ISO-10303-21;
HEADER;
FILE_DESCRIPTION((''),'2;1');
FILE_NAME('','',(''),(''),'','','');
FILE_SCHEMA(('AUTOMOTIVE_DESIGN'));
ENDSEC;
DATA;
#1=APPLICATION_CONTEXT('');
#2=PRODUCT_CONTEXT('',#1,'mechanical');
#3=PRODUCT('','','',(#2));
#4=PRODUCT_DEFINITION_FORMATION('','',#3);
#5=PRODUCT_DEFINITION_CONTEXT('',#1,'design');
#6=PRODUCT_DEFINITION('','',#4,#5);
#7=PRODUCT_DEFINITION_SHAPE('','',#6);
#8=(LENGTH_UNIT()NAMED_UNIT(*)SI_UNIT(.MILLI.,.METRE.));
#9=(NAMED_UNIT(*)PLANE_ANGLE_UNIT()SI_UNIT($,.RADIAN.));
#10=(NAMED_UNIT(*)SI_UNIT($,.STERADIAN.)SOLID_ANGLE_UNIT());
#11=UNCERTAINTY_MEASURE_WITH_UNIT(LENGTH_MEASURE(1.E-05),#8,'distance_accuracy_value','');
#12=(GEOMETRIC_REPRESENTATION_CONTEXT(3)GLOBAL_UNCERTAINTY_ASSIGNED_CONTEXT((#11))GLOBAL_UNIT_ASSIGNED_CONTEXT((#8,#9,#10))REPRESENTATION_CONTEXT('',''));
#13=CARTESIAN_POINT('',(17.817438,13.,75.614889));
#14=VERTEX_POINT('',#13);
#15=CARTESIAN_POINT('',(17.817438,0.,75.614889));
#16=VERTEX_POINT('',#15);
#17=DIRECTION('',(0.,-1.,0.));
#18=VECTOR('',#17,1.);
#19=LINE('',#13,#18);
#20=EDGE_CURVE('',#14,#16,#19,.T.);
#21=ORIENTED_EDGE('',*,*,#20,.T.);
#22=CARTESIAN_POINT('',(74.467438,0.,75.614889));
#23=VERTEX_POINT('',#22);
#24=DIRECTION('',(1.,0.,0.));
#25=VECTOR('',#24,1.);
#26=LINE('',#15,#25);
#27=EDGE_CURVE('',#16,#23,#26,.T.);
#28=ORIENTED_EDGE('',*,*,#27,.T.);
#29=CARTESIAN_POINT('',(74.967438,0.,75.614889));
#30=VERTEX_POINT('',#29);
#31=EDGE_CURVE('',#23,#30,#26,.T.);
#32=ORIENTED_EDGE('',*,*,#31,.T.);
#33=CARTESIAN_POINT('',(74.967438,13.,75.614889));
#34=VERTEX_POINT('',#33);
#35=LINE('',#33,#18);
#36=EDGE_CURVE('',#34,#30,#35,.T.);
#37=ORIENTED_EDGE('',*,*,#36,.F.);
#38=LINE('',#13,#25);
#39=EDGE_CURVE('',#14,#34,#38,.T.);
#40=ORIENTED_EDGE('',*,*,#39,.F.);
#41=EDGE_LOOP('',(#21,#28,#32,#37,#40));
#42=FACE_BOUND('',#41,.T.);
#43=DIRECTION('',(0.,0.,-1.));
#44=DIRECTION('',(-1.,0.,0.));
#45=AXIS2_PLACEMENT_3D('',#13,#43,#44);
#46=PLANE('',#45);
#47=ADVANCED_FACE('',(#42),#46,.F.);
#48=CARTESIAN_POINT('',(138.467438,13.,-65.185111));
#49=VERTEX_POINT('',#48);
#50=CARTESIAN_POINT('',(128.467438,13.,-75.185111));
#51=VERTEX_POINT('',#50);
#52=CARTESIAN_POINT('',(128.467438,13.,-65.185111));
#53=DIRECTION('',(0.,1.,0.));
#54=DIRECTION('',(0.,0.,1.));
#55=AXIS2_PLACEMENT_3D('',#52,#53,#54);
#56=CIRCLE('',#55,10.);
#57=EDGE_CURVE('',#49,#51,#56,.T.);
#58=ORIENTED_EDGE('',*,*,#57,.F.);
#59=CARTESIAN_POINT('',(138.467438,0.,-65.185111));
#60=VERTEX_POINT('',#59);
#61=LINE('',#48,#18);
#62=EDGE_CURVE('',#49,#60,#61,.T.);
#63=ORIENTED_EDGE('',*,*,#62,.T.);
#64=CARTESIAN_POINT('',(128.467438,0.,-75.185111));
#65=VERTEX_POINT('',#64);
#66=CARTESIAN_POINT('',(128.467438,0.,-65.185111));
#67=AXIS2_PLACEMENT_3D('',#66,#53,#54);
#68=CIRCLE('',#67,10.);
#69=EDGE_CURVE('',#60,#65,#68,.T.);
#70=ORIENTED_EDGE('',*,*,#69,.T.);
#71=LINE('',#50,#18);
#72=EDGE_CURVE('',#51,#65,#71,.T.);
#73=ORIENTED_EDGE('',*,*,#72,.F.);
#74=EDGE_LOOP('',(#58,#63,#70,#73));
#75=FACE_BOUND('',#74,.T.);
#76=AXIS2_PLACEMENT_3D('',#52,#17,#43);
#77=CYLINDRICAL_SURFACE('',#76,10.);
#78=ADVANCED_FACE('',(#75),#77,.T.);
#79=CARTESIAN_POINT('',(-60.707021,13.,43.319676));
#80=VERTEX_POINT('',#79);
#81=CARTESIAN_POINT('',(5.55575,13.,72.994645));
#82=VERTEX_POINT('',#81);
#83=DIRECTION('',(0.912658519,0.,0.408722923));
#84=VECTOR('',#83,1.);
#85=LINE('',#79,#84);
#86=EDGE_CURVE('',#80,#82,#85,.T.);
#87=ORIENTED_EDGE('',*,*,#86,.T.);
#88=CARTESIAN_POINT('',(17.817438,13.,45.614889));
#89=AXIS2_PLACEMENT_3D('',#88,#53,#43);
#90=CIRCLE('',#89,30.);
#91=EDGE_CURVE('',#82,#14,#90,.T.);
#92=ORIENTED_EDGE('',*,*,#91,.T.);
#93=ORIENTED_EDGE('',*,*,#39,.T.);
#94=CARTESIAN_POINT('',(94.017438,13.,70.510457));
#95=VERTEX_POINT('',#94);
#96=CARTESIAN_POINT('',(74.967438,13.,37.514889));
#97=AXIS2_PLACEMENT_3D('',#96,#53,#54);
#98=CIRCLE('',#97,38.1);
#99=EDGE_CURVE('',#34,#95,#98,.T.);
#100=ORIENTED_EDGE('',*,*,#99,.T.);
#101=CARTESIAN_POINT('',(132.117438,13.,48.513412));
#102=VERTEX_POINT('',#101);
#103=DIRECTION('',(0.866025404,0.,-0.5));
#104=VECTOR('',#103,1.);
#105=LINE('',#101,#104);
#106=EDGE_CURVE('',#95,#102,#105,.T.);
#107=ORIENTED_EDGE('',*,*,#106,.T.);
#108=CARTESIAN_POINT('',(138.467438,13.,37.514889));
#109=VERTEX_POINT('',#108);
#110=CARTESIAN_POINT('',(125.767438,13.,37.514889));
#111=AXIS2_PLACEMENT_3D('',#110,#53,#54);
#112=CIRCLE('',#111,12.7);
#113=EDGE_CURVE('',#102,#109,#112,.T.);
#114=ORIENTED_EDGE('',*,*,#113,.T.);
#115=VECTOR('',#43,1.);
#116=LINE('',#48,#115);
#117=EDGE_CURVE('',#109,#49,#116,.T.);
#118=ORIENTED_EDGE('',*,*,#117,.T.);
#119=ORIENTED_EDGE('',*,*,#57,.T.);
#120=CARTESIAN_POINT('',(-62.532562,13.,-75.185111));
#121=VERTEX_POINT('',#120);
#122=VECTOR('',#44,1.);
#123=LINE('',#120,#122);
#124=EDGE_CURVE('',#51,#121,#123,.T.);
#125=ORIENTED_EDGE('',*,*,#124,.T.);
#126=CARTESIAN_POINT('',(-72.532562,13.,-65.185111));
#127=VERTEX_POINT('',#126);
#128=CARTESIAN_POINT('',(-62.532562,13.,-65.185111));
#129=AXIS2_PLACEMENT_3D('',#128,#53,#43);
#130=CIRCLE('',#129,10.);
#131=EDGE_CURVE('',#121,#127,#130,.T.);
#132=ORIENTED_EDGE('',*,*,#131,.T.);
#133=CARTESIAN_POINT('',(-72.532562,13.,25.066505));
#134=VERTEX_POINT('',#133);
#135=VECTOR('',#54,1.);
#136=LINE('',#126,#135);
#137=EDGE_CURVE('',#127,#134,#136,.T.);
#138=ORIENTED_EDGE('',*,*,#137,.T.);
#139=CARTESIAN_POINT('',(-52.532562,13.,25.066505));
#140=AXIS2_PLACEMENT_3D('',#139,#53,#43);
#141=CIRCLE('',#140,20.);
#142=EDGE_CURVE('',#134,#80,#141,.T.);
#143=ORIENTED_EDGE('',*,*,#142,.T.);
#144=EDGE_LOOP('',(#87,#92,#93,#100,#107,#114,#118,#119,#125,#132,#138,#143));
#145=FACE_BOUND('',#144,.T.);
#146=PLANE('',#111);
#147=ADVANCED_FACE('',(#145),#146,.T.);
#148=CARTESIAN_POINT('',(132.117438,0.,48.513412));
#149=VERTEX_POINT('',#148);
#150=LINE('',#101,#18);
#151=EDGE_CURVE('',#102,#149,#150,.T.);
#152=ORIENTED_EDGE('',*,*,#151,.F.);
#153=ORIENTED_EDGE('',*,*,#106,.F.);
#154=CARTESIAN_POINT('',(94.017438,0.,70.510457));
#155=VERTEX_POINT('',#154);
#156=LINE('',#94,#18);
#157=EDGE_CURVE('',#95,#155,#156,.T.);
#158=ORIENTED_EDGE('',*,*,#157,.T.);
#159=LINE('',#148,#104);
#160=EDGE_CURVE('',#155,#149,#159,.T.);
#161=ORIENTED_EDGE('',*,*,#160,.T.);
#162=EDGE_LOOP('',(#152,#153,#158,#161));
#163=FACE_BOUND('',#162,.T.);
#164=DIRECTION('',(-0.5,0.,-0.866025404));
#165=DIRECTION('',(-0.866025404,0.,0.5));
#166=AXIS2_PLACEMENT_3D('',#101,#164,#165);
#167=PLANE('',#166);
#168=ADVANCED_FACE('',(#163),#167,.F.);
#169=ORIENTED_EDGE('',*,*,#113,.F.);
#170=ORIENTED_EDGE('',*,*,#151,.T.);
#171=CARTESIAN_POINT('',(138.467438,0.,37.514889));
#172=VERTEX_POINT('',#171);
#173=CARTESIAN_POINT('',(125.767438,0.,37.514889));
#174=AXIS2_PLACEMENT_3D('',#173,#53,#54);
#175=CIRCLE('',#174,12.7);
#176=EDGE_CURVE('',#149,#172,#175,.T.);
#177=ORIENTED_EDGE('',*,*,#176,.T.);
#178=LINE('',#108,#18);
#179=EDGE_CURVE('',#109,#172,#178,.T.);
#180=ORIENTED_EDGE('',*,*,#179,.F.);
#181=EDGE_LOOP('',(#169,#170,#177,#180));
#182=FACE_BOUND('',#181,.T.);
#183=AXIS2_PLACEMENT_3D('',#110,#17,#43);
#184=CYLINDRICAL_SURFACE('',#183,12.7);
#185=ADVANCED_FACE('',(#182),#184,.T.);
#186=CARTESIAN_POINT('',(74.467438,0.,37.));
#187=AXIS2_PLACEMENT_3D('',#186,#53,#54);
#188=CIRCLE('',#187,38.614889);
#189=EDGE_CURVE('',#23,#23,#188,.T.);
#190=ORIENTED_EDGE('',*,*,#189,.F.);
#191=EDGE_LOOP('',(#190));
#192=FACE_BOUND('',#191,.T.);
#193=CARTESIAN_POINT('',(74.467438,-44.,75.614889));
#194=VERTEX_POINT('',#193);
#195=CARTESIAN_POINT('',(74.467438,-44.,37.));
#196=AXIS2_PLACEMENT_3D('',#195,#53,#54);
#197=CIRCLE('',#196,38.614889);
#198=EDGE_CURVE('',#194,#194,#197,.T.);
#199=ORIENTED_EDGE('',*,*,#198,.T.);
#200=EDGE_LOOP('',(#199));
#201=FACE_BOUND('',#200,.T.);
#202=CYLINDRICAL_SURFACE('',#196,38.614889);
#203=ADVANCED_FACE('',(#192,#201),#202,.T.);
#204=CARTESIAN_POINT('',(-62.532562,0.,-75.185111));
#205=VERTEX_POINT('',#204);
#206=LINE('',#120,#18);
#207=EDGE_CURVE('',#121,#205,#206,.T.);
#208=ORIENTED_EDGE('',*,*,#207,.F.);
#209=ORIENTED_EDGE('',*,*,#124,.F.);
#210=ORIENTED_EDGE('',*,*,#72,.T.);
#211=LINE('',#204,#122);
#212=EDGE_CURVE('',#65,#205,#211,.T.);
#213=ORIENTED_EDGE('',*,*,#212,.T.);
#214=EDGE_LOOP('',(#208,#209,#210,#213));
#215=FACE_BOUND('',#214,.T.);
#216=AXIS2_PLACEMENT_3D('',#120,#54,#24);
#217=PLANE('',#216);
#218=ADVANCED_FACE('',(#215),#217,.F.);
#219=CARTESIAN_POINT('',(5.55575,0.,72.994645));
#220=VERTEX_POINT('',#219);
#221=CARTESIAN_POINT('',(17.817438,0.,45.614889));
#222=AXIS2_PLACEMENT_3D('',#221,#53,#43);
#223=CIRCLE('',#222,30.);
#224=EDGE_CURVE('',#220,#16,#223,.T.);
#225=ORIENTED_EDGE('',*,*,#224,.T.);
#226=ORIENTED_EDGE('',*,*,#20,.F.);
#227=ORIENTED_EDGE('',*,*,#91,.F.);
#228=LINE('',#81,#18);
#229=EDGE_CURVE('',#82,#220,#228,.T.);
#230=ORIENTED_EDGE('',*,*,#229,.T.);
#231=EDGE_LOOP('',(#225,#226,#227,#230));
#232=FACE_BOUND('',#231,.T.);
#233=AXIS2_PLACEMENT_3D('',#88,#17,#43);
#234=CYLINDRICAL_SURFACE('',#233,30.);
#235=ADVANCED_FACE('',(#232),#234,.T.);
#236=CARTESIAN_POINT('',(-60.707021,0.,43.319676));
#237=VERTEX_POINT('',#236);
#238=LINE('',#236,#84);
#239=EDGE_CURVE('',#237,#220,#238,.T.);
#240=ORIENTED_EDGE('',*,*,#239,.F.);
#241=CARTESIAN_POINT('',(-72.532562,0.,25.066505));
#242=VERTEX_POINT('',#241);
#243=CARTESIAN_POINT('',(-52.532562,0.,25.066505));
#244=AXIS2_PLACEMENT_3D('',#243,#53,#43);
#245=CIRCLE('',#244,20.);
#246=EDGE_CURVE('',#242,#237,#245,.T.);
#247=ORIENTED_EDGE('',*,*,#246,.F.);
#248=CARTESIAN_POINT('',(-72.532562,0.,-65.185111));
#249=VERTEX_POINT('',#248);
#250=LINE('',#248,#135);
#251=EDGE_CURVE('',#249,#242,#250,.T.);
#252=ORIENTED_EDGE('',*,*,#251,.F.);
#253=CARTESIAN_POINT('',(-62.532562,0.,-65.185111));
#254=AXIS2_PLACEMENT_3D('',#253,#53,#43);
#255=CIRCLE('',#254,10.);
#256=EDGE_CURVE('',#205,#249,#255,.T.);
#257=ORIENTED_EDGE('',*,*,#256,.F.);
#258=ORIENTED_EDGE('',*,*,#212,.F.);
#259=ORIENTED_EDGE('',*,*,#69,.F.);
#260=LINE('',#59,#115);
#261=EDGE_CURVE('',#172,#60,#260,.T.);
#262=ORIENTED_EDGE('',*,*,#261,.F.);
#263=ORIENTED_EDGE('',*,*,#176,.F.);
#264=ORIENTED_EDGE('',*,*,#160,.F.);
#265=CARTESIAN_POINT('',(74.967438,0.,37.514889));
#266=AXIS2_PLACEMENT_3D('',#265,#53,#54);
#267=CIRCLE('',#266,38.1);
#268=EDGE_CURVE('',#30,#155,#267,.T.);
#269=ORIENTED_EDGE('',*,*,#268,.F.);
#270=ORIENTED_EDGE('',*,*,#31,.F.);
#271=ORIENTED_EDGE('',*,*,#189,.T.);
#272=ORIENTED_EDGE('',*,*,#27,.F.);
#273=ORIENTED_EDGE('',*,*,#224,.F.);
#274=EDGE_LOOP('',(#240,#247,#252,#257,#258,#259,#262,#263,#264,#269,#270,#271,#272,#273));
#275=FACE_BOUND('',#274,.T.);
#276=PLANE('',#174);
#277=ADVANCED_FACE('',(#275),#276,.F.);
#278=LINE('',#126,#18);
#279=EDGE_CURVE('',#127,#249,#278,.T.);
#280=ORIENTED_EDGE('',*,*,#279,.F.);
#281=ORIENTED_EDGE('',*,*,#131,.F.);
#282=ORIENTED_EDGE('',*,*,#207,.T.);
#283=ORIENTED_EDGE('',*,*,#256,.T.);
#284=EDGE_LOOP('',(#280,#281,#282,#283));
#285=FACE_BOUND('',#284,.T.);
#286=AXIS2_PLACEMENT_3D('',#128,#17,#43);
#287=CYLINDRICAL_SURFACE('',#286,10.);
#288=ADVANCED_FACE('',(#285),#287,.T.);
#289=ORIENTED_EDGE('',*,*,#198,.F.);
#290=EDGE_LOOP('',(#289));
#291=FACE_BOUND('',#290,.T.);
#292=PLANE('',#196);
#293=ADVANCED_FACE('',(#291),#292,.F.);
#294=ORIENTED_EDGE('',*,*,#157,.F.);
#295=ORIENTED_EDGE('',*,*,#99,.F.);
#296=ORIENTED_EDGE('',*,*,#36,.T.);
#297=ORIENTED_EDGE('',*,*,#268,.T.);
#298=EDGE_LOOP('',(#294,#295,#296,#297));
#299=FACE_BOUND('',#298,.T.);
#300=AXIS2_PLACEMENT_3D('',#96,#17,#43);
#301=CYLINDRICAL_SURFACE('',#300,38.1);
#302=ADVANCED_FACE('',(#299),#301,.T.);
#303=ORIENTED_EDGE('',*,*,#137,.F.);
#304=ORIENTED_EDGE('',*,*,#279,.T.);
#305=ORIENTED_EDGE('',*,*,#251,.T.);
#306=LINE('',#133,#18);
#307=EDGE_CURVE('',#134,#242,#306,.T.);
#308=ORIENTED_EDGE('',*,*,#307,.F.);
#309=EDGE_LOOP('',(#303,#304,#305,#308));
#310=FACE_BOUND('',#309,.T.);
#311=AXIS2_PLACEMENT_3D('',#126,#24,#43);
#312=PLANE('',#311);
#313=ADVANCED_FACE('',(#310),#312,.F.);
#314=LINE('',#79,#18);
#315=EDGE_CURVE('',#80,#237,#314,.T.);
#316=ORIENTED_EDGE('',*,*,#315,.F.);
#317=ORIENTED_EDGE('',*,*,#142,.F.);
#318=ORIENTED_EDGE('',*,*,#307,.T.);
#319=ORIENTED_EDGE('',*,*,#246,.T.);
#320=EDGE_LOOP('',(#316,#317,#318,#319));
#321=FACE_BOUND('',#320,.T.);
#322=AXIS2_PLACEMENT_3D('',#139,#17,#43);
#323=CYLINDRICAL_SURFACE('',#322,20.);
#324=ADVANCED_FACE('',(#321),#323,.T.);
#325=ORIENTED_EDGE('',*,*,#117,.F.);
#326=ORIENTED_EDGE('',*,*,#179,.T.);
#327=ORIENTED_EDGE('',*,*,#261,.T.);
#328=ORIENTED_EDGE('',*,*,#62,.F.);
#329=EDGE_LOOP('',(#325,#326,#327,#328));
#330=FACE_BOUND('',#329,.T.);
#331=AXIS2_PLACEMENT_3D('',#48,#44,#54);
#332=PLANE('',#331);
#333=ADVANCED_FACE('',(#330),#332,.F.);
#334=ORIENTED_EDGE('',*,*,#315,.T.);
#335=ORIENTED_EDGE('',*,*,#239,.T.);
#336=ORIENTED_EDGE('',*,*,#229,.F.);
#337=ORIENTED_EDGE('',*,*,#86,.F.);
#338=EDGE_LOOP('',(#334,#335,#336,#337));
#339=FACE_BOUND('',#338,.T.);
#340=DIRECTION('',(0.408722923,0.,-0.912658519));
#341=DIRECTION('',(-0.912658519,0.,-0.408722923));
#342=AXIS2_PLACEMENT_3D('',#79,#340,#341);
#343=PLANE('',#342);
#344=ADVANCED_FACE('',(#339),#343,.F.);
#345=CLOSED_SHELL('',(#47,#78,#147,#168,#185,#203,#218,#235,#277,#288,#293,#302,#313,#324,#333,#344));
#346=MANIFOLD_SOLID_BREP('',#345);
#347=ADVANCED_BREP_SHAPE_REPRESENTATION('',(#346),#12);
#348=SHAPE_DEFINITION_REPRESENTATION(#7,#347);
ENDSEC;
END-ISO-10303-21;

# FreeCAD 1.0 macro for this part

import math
import FreeCAD as App
import Part
import Sketcher
Q = App.Units.Quantity

doc = App.newDocument("Part")
body = doc.addObject("PartDesign::Body", "Body")

# Sketch on XZ plane
sketch1 = doc.addObject("Sketcher::SketchObject", "Sketch")
body.addObject(sketch1)
sketch1.AttachmentSupport = (doc.XZ_Plane, [""])
sketch1.MapMode = "FlatFace"
sketch1.addGeometry([
    Part.LineSegment(App.Vector(94.017438, 70.510457, 0), App.Vector(132.117438, 48.513412, 0)),  # 0
    Part.ArcOfCircle(Part.Circle(App.Vector(125.767438, 37.514889, 0), App.Vector(0, 0, 1), 12.7), math.radians(0), math.radians(60)),  # 1
    Part.LineSegment(App.Vector(138.467438, 37.514889, 0), App.Vector(138.467438, -65.185111, 0)),  # 2
    Part.ArcOfCircle(Part.Circle(App.Vector(128.467438, -65.185111, 0), App.Vector(0, 0, 1), 10), math.radians(-90), math.radians(0)),  # 3
    Part.LineSegment(App.Vector(128.467438, -75.185111, 0), App.Vector(-62.532562, -75.185111, 0)),  # 4
    Part.ArcOfCircle(Part.Circle(App.Vector(-62.532562, -65.185111, 0), App.Vector(0, 0, 1), 10), math.radians(-180), math.radians(-90)),  # 5
    Part.LineSegment(App.Vector(-72.532562, -65.185111, 0), App.Vector(-72.532562, 25.066505, 0)),  # 6
    Part.ArcOfCircle(Part.Circle(App.Vector(-52.532562, 25.066505, 0), App.Vector(0, 0, 1), 20), math.radians(114.124636), math.radians(180)),  # 7
    Part.LineSegment(App.Vector(-60.707021, 43.319676, 0), App.Vector(5.55575, 72.994645, 0)),  # 8
    Part.ArcOfCircle(Part.Circle(App.Vector(17.817438, 45.614889, 0), App.Vector(0, 0, 1), 30), math.radians(90), math.radians(114.124636)),  # 9
    Part.LineSegment(App.Vector(17.817438, 75.614889, 0), App.Vector(74.967438, 75.614889, 0)),  # 10
    Part.ArcOfCircle(Part.Circle(App.Vector(74.967438, 37.514889, 0), App.Vector(0, 0, 1), 38.1), math.radians(60), math.radians(90)),  # 11
], False)
sketch1.addConstraint([
    Sketcher.Constraint("Tangent", 0, 2, 1, 2),
    Sketcher.Constraint("Tangent", 1, 1, 2, 1),
    Sketcher.Constraint("Tangent", 2, 2, 3, 2),
    Sketcher.Constraint("Tangent", 3, 1, 4, 1),
    Sketcher.Constraint("Tangent", 4, 2, 5, 2),
    Sketcher.Constraint("Tangent", 5, 1, 6, 1),
    Sketcher.Constraint("Tangent", 6, 2, 7, 2),
    Sketcher.Constraint("Tangent", 7, 1, 8, 1),
    Sketcher.Constraint("Tangent", 8, 2, 9, 2),
    Sketcher.Constraint("Tangent", 9, 1, 10, 1),
    Sketcher.Constraint("Tangent", 10, 2, 11, 2),
    Sketcher.Constraint("Tangent", 11, 1, 0, 1),
    Sketcher.Constraint("Vertical", 2),
    Sketcher.Constraint("Horizontal", 4),
    Sketcher.Constraint("Vertical", 6),
    Sketcher.Constraint("Horizontal", 10),
    Sketcher.Constraint("Equal", 3, 5),
    Sketcher.Constraint("Horizontal", 1, 3, 11, 3),
    Sketcher.Constraint("Radius", 3, 10.0),
    Sketcher.Constraint("Radius", 7, 20.0),
    Sketcher.Constraint("Radius", 9, 30.0),
    Sketcher.Constraint("Radius", 1, 12.7),
    Sketcher.Constraint("Radius", 11, 38.1),
    Sketcher.Constraint("DistanceX", 4, 2, 4, 1, 191.0),
    Sketcher.Constraint("Angle", 0, Q("-30 deg")),
    Sketcher.Constraint("DistanceY", 2, 2, 2, 1, 102.7),
    Sketcher.Constraint("DistanceX", 10, 1, 10, 2, 57.15),
    Sketcher.Constraint("DistanceY", 6, 1, 6, 2, 90.251616),
    Sketcher.Constraint("DistanceY", -1, 1, 1, 3, 37.514889),
    Sketcher.Constraint("DistanceX", 7, 1, -1, 1, 60.707021),
])
pad1 = doc.addObject("PartDesign::Pad", "Pad")
body.addObject(pad1)
pad1.Profile = sketch1
pad1.Length = 13
pad1.Reversed = True

# Sketch on XZ plane
sketch2 = doc.addObject("Sketcher::SketchObject", "Sketch001")
body.addObject(sketch2)
sketch2.AttachmentSupport = (doc.XZ_Plane, [""])
sketch2.MapMode = "FlatFace"
sketch2.addGeometry(Part.Circle(App.Vector(74.467438, 37, 0), App.Vector(0, 0, 1), 38.614889), False)
sketch2.addConstraint([
    Sketcher.Constraint("DistanceY", -1, 1, 0, 3, 37.0),
    Sketcher.Constraint("Diameter", 0, 77.229778),
    Sketcher.Constraint("DistanceX", -1, 1, 0, 3, 74.467438),
])
pad2 = doc.addObject("PartDesign::Pad", "Pad001")
body.addObject(pad2)
pad2.Profile = sketch2
pad2.Length = 44

doc.recompute()
